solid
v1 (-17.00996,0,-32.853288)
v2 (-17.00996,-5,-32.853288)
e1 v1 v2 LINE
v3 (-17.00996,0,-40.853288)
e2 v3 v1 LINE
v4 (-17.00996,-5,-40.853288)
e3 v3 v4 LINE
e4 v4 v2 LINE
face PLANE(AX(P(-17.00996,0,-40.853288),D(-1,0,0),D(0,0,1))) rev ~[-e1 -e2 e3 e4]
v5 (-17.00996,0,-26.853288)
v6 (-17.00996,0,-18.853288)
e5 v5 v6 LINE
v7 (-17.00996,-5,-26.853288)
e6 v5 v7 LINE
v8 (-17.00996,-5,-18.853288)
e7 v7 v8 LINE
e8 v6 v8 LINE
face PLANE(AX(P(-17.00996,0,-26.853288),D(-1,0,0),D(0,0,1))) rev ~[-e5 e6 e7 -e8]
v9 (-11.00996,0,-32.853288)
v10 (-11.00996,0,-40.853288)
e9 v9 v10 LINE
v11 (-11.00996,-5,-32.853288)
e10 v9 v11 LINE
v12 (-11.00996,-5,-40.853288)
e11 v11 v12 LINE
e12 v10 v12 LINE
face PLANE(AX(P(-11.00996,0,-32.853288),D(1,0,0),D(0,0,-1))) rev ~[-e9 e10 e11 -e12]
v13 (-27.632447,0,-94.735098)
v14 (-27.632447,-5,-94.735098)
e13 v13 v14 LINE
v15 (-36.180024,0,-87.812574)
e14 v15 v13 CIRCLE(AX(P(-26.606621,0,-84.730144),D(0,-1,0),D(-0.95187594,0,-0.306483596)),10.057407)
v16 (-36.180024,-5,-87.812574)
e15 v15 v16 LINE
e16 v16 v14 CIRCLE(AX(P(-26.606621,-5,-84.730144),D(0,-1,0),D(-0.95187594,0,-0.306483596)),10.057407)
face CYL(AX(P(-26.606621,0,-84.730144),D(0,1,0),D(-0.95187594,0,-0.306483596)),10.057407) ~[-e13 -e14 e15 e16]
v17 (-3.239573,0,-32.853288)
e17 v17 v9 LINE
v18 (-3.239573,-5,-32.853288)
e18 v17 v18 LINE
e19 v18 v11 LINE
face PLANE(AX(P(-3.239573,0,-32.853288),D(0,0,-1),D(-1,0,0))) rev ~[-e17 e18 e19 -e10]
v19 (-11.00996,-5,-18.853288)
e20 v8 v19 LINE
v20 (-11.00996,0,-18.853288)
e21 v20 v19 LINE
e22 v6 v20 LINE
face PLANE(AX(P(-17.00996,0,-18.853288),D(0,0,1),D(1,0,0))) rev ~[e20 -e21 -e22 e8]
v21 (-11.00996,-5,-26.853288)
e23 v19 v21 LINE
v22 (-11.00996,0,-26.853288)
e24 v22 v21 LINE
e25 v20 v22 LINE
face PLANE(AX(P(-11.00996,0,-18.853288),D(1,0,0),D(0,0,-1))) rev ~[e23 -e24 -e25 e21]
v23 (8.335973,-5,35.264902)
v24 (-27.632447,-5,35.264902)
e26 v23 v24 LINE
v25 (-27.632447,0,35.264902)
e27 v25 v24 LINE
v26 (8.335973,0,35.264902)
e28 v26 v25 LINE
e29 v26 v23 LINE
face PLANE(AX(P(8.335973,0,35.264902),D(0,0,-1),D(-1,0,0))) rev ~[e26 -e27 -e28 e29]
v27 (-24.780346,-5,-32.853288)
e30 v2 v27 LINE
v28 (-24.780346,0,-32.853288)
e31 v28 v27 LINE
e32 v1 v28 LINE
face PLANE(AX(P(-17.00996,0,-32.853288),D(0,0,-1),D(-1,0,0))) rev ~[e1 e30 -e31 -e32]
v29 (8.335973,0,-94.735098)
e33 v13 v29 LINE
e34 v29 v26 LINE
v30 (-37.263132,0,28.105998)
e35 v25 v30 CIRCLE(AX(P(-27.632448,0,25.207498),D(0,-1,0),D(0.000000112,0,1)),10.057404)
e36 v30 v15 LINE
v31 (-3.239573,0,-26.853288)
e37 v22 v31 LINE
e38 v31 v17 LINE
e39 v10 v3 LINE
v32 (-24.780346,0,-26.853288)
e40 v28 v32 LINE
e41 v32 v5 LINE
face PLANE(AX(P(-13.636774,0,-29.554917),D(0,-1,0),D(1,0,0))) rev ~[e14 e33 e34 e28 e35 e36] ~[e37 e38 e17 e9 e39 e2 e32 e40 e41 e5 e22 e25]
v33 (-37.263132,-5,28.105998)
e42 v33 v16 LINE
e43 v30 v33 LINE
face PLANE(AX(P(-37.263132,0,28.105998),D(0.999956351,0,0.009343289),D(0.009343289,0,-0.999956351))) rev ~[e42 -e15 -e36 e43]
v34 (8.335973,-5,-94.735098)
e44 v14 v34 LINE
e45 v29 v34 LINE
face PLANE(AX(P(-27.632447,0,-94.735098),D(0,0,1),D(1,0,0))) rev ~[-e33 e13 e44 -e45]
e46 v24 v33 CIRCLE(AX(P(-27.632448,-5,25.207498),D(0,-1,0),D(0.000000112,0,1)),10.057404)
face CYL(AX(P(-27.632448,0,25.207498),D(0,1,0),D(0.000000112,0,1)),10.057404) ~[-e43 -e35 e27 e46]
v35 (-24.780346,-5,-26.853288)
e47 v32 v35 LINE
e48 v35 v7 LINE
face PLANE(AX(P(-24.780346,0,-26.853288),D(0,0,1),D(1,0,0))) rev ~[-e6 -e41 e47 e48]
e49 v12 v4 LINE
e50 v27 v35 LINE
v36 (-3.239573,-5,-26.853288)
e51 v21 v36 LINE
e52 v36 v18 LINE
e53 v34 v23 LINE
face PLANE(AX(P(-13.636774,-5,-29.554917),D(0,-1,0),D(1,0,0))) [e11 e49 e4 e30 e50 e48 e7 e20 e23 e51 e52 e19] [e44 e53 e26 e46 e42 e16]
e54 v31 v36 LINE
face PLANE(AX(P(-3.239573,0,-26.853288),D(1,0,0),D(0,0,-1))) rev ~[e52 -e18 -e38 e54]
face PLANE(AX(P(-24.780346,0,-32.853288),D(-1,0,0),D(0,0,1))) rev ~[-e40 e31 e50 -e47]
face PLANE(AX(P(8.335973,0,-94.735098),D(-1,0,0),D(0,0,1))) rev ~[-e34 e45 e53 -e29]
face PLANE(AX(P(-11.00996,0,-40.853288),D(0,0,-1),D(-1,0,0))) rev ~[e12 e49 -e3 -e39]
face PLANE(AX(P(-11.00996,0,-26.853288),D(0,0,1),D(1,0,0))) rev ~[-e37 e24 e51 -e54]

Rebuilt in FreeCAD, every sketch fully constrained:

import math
import FreeCAD as App
import Part
import Sketcher
from FreeCAD import Vector


def add_polygon(sketch, points):
    """Adds a closed chain of lines whose ends are joined by coincident constraints."""
    first, n = sketch.GeometryCount, len(points)
    for a, b in zip(points, points[1:] + points[:1]):
        sketch.addGeometry(Part.LineSegment(App.Vector(*a, 0), App.Vector(*b, 0)), False)
    for i in range(n):
        sketch.addConstraint(Sketcher.Constraint("Coincident", first + i, 2, first + (i + 1) % n, 1))

doc = App.newDocument("Part")
body = doc.addObject("PartDesign::Body", "Body")

# Sketch on XZ plane
sketch1 = doc.addObject("Sketcher::SketchObject", "Sketch")
body.addObject(sketch1)
sketch1.AttachmentSupport = (doc.XZ_Plane, [""])
sketch1.MapMode = "FlatFace"
sketch1.addGeometry(Part.LineSegment(Vector(8, -95, 0), Vector(8, 35, 0)), False)  # 0
sketch1.addGeometry(Part.LineSegment(Vector(8, 35, 0), Vector(-28, 35, 0)), False)  # 1
sketch1.addGeometry(Part.ArcOfCircle(Part.Circle(Vector(-28, 25, 0), Vector(0, 0, 1), 10), math.radians(90), math.radians(163)), False)  # 2
sketch1.addGeometry(Part.LineSegment(Vector(-37, 28, 0), Vector(-36, -88, 0)), False)  # 3
sketch1.addGeometry(Part.ArcOfCircle(Part.Circle(Vector(-27, -85, 0), Vector(0, 0, 1), 10), math.radians(-162), math.radians(-96)), False)  # 4
sketch1.addGeometry(Part.LineSegment(Vector(-28, -95, 0), Vector(8, -95, 0)), False)  # 5
add_polygon(sketch1, [(-25, -27), (-17, -27), (-17, -19), (-11, -19), (-11, -27), (-3, -27), (-3, -33), (-11, -33), (-11, -41), (-17, -41), (-17, -33), (-25, -33)])  # lines 6-17
sketch1.addConstraint(Sketcher.Constraint("Coincident", 0, 2, 1, 1))
sketch1.addConstraint(Sketcher.Constraint("Tangent", 1, 2, 2, 1))
sketch1.addConstraint(Sketcher.Constraint("Coincident", 2, 2, 3, 1))
sketch1.addConstraint(Sketcher.Constraint("Coincident", 3, 2, 4, 1))
sketch1.addConstraint(Sketcher.Constraint("Coincident", 4, 2, 5, 1))
sketch1.addConstraint(Sketcher.Constraint("Coincident", 5, 2, 0, 1))
sketch1.addConstraint(Sketcher.Constraint("Vertical", 0))
sketch1.addConstraint(Sketcher.Constraint("Horizontal", 1))
sketch1.addConstraint(Sketcher.Constraint("Horizontal", 5))
sketch1.addConstraint(Sketcher.Constraint("Horizontal", 6))
sketch1.addConstraint(Sketcher.Constraint("Vertical", 7))
sketch1.addConstraint(Sketcher.Constraint("Horizontal", 8))
sketch1.addConstraint(Sketcher.Constraint("Vertical", 9))
sketch1.addConstraint(Sketcher.Constraint("Horizontal", 10))
sketch1.addConstraint(Sketcher.Constraint("Vertical", 11))
sketch1.addConstraint(Sketcher.Constraint("Horizontal", 12))
sketch1.addConstraint(Sketcher.Constraint("Vertical", 13))
sketch1.addConstraint(Sketcher.Constraint("Horizontal", 14))
sketch1.addConstraint(Sketcher.Constraint("Vertical", 15))
sketch1.addConstraint(Sketcher.Constraint("Horizontal", 16))
sketch1.addConstraint(Sketcher.Constraint("Vertical", 17))
sketch1.addConstraint(Sketcher.Constraint("Horizontal", 6, 2, 9, 2))
sketch1.addConstraint(Sketcher.Constraint("Horizontal", 12, 2, 15, 2))
sketch1.addConstraint(Sketcher.Constraint("Vertical", 1, 2, 4, 2))
sketch1.addConstraint(Sketcher.Constraint("Vertical", 9, 2, 12, 2))
sketch1.addConstraint(Sketcher.Constraint("Vertical", 7, 2, 14, 2))
sketch1.addConstraint(Sketcher.Constraint("Equal", 6, 10))
sketch1.addConstraint(Sketcher.Constraint("Equal", 14, 11))
sketch1.addConstraint(Sketcher.Constraint("Equal", 9, 13))
sketch1.addConstraint(Sketcher.Constraint("DistanceX", 8, 1, 8, 2, 6.0))
sketch1.addConstraint(Sketcher.Constraint("DistanceY", 0, 1, 0, 2, 130.0))
sketch1.addConstraint(Sketcher.Constraint("DistanceY", 7, 1, 7, 2, 8.0))
sketch1.addConstraint(Sketcher.Constraint("DistanceY", -1, 1, 2, 2, 28.105998))
sketch1.addConstraint(Sketcher.Constraint("Radius", 2, 10.057404))
sketch1.addConstraint(Sketcher.Constraint("Radius", 4, 10.057407))
sketch1.addConstraint(Sketcher.Constraint("DistanceX", 1, 2, 1, 1, 35.96842))
sketch1.addConstraint(Sketcher.Constraint("DistanceY", -1, 1, 2, 3, 25.207498))
sketch1.addConstraint(Sketcher.Constraint("DistanceX", 6, 1, 6, 2, 7.770386))
sketch1.addConstraint(Sketcher.Constraint("DistanceX", 2, 3, -1, 1, 27.632448))
sketch1.addConstraint(Sketcher.Constraint("DistanceX", 4, 3, -1, 1, 26.606621))
sketch1.addConstraint(Sketcher.Constraint("DistanceX", 6, 2, -1, 1, 17.00996))
sketch1.addConstraint(Sketcher.Constraint("DistanceY", 3, 2, 4, 3, 3.08243))
sketch1.addConstraint(Sketcher.Constraint("DistanceY", 6, 2, 1, 2, 62.11819))
pad1 = doc.addObject("PartDesign::Pad", "Pad")
body.addObject(pad1)
pad1.Profile = sketch1
pad1.Length = 5

doc.recompute()
